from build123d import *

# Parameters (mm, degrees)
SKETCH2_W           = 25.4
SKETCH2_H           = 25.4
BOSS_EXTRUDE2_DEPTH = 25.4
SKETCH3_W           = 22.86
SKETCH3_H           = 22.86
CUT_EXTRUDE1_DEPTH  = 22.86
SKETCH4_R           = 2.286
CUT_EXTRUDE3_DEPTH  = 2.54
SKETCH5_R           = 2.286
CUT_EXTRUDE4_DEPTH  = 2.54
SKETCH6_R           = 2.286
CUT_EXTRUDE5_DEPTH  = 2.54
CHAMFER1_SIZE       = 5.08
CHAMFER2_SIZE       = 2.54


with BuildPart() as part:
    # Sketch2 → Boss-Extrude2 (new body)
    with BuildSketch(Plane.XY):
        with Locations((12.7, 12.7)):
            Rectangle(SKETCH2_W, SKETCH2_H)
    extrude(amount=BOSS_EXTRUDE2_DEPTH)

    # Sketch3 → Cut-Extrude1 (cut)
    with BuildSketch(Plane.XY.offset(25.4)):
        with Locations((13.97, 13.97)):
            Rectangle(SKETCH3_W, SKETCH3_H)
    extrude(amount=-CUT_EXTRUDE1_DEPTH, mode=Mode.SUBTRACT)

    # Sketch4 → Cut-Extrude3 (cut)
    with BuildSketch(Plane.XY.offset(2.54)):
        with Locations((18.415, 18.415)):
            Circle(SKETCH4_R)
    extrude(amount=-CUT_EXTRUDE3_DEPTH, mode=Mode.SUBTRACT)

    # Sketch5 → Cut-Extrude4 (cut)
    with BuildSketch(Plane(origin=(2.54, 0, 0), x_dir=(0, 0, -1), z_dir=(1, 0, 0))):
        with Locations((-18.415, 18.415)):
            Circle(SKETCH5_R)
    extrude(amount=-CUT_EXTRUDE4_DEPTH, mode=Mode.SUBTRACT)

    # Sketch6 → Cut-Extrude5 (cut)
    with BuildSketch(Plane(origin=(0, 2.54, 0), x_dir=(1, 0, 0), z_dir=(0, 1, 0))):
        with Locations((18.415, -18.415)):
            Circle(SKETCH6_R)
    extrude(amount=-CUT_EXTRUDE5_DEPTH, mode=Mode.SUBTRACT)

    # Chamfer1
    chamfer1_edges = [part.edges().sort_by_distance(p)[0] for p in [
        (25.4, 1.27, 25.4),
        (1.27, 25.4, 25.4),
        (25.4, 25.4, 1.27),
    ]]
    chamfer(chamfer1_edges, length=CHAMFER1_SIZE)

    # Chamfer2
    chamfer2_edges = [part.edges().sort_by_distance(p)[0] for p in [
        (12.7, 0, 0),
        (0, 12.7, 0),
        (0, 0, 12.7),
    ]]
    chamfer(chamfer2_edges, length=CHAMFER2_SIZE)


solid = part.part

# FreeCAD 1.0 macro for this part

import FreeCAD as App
import Part
import Sketcher

V = App.Vector
Q = App.Units.Quantity


def edges_at(feature, points):
    """Names of the edges that pass closest to the given points."""
    edges = feature.Shape.Edges
    near = lambda p: min(range(len(edges)), key=lambda i: edges[i].distToShape(Part.Vertex(*p))[0])
    return sorted({f"Edge{near(p) + 1}" for p in points})


def add_polygon(sketch, points):
    """Adds a closed chain of lines whose ends are joined by coincident constraints."""
    first, n = sketch.GeometryCount, len(points)
    for a, b in zip(points, points[1:] + points[:1]):
        sketch.addGeometry(Part.LineSegment(App.Vector(*a, 0), App.Vector(*b, 0)), False)
    for i in range(n):
        sketch.addConstraint(Sketcher.Constraint("Coincident", first + i, 2, first + (i + 1) % n, 1))

doc = App.newDocument("Part")
body = doc.addObject("PartDesign::Body", "Body")

# Sketch on XY plane
sketch1 = body.newObject("Sketcher::SketchObject", "Sketch")
sketch1.AttachmentSupport = (doc.getObject("XY_Plane"), [""])
sketch1.MapMode = "FlatFace"
add_polygon(sketch1, [(0, 25), (0, 0), (25, 0), (25, 25)])  # lines 0-3
sketch1.addConstraint(Sketcher.Constraint("Vertical", 0))
sketch1.addConstraint(Sketcher.Constraint("Horizontal", 1))
sketch1.addConstraint(Sketcher.Constraint("Vertical", 2))
sketch1.addConstraint(Sketcher.Constraint("Horizontal", 3))
sketch1.addConstraint(Sketcher.Constraint("Coincident", 0, 2, -1, 1))
sketch1.addConstraint(Sketcher.Constraint("Equal", 3, 0))
sketch1.addConstraint(Sketcher.Constraint("DistanceX", 1, 1, 1, 2, Q("1 in")))
pad1 = body.newObject("PartDesign::Pad", "Pad")
pad1.Profile = sketch1
pad1.Length = Q("1 in")

# Sketch on XY plane
sketch2 = body.newObject("Sketcher::SketchObject", "Sketch001")
sketch2.AttachmentSupport = (doc.getObject("XY_Plane"), [""])
sketch2.MapMode = "FlatFace"
sketch2.AttachmentOffset = App.Placement(V(0, 0, 1 * 25.4), App.Rotation())
add_polygon(sketch2, [(3, 25), (3, 3), (25, 3), (25, 25)])  # lines 0-3
sketch2.addConstraint(Sketcher.Constraint("Vertical", 0))
sketch2.addConstraint(Sketcher.Constraint("Horizontal", 1))
sketch2.addConstraint(Sketcher.Constraint("Vertical", 2))
sketch2.addConstraint(Sketcher.Constraint("Horizontal", 3))
sketch2.addConstraint(Sketcher.Constraint("Equal", 3, 0))
sketch2.addConstraint(Sketcher.Constraint("DistanceX", 1, 1, 1, 2, Q("0.9 in")))
sketch2.addConstraint(Sketcher.Constraint("DistanceX", -1, 1, 1, 2, Q("1 in")))
sketch2.addConstraint(Sketcher.Constraint("DistanceY", -1, 1, 2, 2, Q("1 in")))
pocket1 = body.newObject("PartDesign::Pocket", "Pocket")
pocket1.Profile = sketch2
pocket1.Length = Q("0.9 in")

# Sketch on XY plane
sketch3 = body.newObject("Sketcher::SketchObject", "Sketch002")
sketch3.AttachmentSupport = (doc.getObject("XY_Plane"), [""])
sketch3.MapMode = "FlatFace"
sketch3.AttachmentOffset = App.Placement(V(0, 0, 0.1 * 25.4), App.Rotation())
sketch3.addGeometry(Part.Circle(V(18.4, 18.4, 0), V(0, 0, 1), 2.3), False)
sketch3.addConstraint(Sketcher.Constraint("Diameter", 0, Q("0.18 in")))
sketch3.addConstraint(Sketcher.Constraint("DistanceX", -1, 1, 0, 3, Q("0.725 in")))
sketch3.addConstraint(Sketcher.Constraint("DistanceY", -1, 1, 0, 3, Q("0.725 in")))
pocket2 = body.newObject("PartDesign::Pocket", "Pocket001")
pocket2.Profile = sketch3
pocket2.Length = Q("0.1 in")

# Sketch on YZ plane
sketch4 = body.newObject("Sketcher::SketchObject", "Sketch003")
sketch4.AttachmentSupport = (doc.getObject("YZ_Plane"), [""])
sketch4.MapMode = "FlatFace"
sketch4.AttachmentOffset = App.Placement(V(0, 0, 0.1 * 25.4), App.Rotation())
sketch4.addGeometry(Part.Circle(V(18.4, 18.4, 0), V(0, 0, 1), 2.3), False)
sketch4.addConstraint(Sketcher.Constraint("Diameter", 0, Q("0.18 in")))
sketch4.addConstraint(Sketcher.Constraint("DistanceX", -1, 1, 0, 3, Q("0.725 in")))
sketch4.addConstraint(Sketcher.Constraint("DistanceY", -1, 1, 0, 3, Q("0.725 in")))
pocket3 = body.newObject("PartDesign::Pocket", "Pocket002")
pocket3.Profile = sketch4
pocket3.Length = Q("0.1 in")

# Sketch on XZ plane
sketch5 = body.newObject("Sketcher::SketchObject", "Sketch004")
sketch5.AttachmentSupport = (doc.getObject("XZ_Plane"), [""])
sketch5.MapMode = "FlatFace"
sketch5.AttachmentOffset = App.Placement(V(0, 0, -0.1 * 25.4), App.Rotation())
sketch5.addGeometry(Part.Circle(V(18.4, 18.4, 0), V(0, 0, 1), 2.3), False)
sketch5.addConstraint(Sketcher.Constraint("Diameter", 0, Q("0.18 in")))
sketch5.addConstraint(Sketcher.Constraint("DistanceX", -1, 1, 0, 3, Q("0.725 in")))
sketch5.addConstraint(Sketcher.Constraint("DistanceY", -1, 1, 0, 3, Q("0.725 in")))
pocket4 = body.newObject("PartDesign::Pocket", "Pocket003")
pocket4.Profile = sketch5
pocket4.Length = Q("0.1 in")
pocket4.Reversed = True
doc.recompute()

chamfer = body.newObject("PartDesign::Chamfer", "Chamfer")
chamfer.Base = (pocket4, edges_at(pocket4, [(25.4, 1.27, 25.4), (1.27, 25.4, 25.4), (25.4, 25.4, 1.27)]))
chamfer.Size = Q("0.2 in")
doc.recompute()

chamfer2 = body.newObject("PartDesign::Chamfer", "Chamfer001")
chamfer2.Base = (chamfer, edges_at(chamfer, [(12.7, 0, 0), (0, 12.7, 0), (0, 0, 12.7)]))
chamfer2.Size = Q("0.1 in")

doc.recompute()
